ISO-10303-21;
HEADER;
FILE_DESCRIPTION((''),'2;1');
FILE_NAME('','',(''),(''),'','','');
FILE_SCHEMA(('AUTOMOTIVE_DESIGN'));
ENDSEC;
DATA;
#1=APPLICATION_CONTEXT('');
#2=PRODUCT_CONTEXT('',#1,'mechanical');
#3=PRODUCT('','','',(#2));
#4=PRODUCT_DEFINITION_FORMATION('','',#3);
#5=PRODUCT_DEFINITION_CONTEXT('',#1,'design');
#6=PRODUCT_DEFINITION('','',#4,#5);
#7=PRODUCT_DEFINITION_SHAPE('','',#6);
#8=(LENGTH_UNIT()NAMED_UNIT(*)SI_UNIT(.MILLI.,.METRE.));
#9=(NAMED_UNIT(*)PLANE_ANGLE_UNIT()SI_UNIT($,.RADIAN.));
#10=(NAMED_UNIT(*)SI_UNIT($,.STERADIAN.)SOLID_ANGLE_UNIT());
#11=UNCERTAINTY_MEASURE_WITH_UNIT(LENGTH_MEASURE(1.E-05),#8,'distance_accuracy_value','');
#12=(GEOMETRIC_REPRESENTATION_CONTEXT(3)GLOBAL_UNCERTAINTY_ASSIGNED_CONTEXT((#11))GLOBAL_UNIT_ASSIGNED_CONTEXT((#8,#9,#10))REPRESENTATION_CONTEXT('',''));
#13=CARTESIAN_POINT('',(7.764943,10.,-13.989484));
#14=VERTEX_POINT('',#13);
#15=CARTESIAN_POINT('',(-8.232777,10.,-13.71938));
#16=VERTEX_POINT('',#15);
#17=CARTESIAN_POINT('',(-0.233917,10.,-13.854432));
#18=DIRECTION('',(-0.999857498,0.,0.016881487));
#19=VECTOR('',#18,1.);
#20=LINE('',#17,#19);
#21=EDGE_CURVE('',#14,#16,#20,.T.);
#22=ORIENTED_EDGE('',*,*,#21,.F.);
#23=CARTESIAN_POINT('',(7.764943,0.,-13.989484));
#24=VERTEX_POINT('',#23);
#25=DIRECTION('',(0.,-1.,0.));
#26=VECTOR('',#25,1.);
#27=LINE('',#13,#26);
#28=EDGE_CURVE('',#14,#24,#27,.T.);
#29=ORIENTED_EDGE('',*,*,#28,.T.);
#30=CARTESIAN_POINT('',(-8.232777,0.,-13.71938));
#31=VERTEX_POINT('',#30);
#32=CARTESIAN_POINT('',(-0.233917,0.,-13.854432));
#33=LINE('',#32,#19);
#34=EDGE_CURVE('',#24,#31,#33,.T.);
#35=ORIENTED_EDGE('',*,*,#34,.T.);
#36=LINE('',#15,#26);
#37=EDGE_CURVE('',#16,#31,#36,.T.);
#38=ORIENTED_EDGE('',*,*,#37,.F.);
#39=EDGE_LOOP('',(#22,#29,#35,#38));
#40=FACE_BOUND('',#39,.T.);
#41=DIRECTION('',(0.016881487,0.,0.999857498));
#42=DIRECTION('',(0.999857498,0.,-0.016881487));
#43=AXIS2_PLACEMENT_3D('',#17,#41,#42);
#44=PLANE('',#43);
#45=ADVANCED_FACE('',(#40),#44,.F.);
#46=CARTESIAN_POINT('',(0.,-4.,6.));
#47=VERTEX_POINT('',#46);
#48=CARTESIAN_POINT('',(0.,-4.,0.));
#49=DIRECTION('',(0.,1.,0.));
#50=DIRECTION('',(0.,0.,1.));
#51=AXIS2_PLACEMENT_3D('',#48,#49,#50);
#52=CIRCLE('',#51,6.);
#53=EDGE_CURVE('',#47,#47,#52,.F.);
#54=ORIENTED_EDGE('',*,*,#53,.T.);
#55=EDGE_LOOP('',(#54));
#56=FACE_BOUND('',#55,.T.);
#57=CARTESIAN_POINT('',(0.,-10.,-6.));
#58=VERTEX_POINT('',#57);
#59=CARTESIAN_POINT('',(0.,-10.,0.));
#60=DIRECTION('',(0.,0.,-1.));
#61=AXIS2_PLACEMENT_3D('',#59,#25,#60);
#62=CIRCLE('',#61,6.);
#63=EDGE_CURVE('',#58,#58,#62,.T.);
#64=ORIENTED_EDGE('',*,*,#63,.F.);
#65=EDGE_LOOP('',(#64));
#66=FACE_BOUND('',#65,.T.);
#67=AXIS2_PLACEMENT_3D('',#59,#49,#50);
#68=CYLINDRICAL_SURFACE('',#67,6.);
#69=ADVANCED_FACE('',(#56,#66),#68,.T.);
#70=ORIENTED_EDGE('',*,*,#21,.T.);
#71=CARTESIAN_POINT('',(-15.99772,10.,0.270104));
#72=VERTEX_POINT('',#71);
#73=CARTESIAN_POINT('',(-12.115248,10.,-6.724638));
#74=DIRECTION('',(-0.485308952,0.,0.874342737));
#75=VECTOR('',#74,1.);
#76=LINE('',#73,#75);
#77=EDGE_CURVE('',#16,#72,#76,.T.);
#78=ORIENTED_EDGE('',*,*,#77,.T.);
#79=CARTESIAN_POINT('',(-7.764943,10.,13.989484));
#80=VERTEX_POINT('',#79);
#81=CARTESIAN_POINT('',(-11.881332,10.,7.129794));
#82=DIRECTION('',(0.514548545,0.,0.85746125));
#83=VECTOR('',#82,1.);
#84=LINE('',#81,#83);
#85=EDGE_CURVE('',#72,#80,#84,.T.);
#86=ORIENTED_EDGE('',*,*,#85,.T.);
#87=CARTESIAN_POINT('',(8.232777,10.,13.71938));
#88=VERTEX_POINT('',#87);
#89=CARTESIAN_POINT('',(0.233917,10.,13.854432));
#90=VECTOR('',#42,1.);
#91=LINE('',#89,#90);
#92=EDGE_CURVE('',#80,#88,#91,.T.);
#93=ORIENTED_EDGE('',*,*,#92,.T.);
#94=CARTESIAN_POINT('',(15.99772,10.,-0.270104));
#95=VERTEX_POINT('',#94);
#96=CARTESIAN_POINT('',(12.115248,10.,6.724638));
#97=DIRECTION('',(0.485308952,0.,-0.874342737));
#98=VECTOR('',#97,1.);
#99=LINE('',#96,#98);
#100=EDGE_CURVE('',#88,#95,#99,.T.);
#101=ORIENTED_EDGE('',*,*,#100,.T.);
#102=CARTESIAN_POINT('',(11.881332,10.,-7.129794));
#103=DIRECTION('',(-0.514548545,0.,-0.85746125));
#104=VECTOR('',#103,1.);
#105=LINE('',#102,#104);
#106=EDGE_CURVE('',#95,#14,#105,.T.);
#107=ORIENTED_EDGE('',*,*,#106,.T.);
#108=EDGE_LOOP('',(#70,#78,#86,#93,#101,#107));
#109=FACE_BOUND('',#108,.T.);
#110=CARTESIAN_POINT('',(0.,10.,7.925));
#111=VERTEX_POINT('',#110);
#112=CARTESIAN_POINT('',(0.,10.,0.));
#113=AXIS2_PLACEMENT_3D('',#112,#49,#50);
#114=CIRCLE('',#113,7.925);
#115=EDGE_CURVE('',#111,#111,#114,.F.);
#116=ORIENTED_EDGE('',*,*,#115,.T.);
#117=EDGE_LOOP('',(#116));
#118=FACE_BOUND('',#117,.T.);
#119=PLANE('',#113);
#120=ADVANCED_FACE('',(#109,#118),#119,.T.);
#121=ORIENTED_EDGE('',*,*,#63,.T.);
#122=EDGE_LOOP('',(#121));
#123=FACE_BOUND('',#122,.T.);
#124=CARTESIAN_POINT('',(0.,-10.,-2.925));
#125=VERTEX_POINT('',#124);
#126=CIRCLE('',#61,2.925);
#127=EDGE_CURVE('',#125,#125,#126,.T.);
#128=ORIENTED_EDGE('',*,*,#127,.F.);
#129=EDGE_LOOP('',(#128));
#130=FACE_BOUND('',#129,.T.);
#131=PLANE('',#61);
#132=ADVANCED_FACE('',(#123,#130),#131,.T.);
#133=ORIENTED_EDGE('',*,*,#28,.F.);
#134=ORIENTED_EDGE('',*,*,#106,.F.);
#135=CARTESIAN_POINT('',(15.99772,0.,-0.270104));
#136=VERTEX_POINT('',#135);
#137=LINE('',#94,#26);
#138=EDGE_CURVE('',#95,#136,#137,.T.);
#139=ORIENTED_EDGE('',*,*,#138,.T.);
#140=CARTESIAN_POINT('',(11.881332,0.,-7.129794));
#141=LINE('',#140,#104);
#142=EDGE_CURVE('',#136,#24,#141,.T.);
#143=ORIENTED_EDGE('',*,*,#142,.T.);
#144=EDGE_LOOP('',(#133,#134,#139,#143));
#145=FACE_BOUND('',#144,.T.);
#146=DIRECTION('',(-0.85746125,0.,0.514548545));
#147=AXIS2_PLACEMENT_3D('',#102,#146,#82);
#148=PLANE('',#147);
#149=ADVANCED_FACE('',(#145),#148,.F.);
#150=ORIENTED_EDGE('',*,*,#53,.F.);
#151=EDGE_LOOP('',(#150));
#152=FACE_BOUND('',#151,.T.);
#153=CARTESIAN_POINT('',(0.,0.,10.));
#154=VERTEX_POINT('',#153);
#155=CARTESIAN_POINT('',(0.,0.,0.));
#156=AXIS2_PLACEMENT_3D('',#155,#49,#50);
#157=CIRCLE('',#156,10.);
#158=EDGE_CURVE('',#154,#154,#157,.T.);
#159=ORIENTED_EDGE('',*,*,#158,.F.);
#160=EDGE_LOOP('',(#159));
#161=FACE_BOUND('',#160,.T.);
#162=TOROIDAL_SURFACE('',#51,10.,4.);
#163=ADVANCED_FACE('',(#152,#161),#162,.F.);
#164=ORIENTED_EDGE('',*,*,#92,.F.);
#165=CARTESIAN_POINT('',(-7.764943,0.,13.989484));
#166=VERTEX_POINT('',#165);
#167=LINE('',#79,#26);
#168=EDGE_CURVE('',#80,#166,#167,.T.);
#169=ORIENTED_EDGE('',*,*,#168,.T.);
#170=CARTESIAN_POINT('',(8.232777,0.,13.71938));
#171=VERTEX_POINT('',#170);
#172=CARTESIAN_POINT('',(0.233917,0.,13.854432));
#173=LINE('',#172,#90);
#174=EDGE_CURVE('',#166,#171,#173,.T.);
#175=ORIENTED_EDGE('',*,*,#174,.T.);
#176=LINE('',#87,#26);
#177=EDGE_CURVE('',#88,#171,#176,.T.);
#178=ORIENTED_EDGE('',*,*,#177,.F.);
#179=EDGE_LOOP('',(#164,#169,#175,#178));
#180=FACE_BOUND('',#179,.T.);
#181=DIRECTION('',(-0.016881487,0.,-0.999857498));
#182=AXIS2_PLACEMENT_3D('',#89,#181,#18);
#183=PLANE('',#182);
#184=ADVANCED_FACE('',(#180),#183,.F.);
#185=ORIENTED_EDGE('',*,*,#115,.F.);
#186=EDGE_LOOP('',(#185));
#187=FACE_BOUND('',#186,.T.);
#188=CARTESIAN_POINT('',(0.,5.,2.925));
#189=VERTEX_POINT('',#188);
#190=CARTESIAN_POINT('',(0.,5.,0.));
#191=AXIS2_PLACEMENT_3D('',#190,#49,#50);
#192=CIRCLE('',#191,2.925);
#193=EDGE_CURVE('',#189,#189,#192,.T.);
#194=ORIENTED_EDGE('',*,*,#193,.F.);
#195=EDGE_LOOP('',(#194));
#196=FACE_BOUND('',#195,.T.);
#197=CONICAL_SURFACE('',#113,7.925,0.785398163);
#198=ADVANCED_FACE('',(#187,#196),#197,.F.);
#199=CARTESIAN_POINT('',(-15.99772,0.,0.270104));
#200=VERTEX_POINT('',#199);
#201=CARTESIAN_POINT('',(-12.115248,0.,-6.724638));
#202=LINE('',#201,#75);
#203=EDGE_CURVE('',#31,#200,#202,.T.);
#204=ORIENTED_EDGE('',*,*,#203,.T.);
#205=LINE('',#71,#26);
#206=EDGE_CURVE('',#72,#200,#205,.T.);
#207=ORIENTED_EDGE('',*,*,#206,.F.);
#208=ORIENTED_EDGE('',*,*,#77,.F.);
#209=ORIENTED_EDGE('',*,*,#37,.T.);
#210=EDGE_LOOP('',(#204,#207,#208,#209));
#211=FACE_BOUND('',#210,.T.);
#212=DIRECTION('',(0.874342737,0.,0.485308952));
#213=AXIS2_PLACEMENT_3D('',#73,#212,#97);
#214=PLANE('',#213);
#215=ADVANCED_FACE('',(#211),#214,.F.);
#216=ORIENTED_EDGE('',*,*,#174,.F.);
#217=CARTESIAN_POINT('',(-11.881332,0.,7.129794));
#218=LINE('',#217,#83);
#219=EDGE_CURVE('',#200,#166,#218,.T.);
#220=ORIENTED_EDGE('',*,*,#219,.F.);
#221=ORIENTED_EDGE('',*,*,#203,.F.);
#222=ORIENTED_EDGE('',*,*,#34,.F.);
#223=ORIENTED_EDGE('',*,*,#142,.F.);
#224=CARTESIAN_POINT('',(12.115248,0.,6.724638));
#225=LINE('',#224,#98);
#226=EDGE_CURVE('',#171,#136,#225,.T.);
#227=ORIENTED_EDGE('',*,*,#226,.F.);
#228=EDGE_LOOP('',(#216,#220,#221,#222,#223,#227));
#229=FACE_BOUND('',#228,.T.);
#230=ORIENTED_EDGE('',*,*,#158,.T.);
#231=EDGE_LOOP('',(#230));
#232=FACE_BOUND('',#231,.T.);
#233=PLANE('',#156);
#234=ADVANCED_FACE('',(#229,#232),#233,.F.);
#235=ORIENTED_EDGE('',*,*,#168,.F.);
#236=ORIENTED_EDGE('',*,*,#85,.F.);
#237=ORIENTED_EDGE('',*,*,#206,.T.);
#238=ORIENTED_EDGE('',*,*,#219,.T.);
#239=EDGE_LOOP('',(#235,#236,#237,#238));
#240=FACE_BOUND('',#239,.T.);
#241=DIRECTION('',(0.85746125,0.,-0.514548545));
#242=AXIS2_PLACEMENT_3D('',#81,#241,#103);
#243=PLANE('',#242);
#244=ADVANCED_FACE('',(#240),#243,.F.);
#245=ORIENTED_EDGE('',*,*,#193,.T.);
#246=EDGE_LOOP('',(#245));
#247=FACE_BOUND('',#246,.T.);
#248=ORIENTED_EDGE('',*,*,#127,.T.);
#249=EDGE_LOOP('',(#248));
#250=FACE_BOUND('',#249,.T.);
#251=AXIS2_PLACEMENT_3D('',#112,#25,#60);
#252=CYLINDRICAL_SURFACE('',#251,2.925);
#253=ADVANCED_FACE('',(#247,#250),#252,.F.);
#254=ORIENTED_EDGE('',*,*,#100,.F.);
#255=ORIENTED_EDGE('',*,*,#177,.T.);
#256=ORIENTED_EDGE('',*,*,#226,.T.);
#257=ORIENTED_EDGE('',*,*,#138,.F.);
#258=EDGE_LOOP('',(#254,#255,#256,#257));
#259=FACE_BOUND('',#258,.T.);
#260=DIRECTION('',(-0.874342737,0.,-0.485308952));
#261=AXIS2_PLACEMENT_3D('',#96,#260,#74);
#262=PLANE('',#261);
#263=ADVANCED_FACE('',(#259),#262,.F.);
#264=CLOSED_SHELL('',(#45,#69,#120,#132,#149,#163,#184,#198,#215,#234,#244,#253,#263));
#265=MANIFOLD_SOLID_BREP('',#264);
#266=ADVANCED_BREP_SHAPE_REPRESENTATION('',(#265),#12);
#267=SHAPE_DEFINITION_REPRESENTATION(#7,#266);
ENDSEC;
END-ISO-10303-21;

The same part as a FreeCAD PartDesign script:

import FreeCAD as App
import Part
import Sketcher


def edges_at(feature, points):
    """Names of the edges that pass closest to the given points."""
    edges = feature.Shape.Edges
    near = lambda p: min(range(len(edges)), key=lambda i: edges[i].distToShape(Part.Vertex(*p))[0])
    return sorted({f"Edge{near(p) + 1}" for p in points})


def add_polygon(sketch, points):
    """Adds a closed chain of lines whose ends are joined by coincident constraints."""
    first, n = sketch.GeometryCount, len(points)
    for a, b in zip(points, points[1:] + points[:1]):
        sketch.addGeometry(Part.LineSegment(App.Vector(*a, 0), App.Vector(*b, 0)), False)
    for i in range(n):
        sketch.addConstraint(Sketcher.Constraint("Coincident", first + i, 2, first + (i + 1) % n, 1))

doc = App.newDocument("Part")
body = doc.addObject("PartDesign::Body", "Body")

sketch1 = body.newObject("Sketcher::SketchObject", "Sketch")
sketch1.AttachmentSupport = (doc.getObject("XZ_Plane"), [""])
sketch1.MapMode = "FlatFace"
add_polygon(sketch1, [(7.764943, -13.989484), (-8.232777, -13.71938), (-15.99772, 0.270104), (-7.764943, 13.989484), (8.232777, 13.71938), (15.99772, -0.270104)])
sketch1.addConstraint(Sketcher.Constraint("Symmetric", 0, 2, 3, 2, -1, 1))
sketch1.addConstraint(Sketcher.Constraint("Symmetric", 1, 2, 4, 2, -1, 1))
sketch1.addConstraint(Sketcher.Constraint("Symmetric", 2, 2, 5, 2, -1, 1))
sketch1.addConstraint(Sketcher.Constraint("Equal", 0, 1))
sketch1.addConstraint(Sketcher.Constraint("Equal", 1, 2))
sketch1.addConstraint(Sketcher.Constraint("Distance", 0, 16.0))
sketch1.addConstraint(Sketcher.Constraint("DistanceY", 0, 2, -1, 1, 13.71938))
sketch1.addConstraint(Sketcher.Constraint("DistanceX", 1, 2, -1, 1, 15.99772))
sketch1.addConstraint(Sketcher.Constraint("DistanceY", 1, 2, 2, 2, 13.71938))
pad1 = body.newObject("PartDesign::Pad", "Pad")
pad1.Profile = sketch1
pad1.Length = 10
pad1.Reversed = True

sketch2 = body.newObject("Sketcher::SketchObject", "Sketch001")
sketch2.AttachmentSupport = (doc.getObject("XZ_Plane"), [""])
sketch2.MapMode = "FlatFace"
sketch2.addGeometry(Part.Circle(App.Vector(0, 0, 0), App.Vector(0, 0, 1), 6), False)
sketch2.addConstraint(Sketcher.Constraint("Coincident", 0, 3, -1, 1))
sketch2.addConstraint(Sketcher.Constraint("Diameter", 0, 12.0))
pad2 = body.newObject("PartDesign::Pad", "Pad001")
pad2.Profile = sketch2
pad2.Length = 10

sketch3 = body.newObject("Sketcher::SketchObject", "Sketch002")
sketch3.AttachmentSupport = (doc.getObject("XZ_Plane"), [""])
sketch3.MapMode = "FlatFace"
sketch3.AttachmentOffset = App.Placement(App.Vector(0, 0, 10), App.Rotation())
sketch3.addGeometry(Part.Circle(App.Vector(0, 0, 0), App.Vector(0, 0, 1), 2.925), False)
sketch3.addConstraint(Sketcher.Constraint("Coincident", 0, 3, -1, 1))
sketch3.addConstraint(Sketcher.Constraint("Diameter", 0, 5.85))
pocket1 = body.newObject("PartDesign::Pocket", "Pocket")
pocket1.Profile = sketch3
pocket1.Type = "ThroughAll"
doc.recompute()

fillet = body.newObject("PartDesign::Fillet", "Fillet")
fillet.Base = (pocket1, edges_at(pocket1, [(-6, 0, 0)]))
fillet.Radius = 4
doc.recompute()

chamfer = body.newObject("PartDesign::Chamfer", "Chamfer")
chamfer.Base = (fillet, edges_at(fillet, [(-2.925, 10, 0)]))
chamfer.Size = 5

doc.recompute()
